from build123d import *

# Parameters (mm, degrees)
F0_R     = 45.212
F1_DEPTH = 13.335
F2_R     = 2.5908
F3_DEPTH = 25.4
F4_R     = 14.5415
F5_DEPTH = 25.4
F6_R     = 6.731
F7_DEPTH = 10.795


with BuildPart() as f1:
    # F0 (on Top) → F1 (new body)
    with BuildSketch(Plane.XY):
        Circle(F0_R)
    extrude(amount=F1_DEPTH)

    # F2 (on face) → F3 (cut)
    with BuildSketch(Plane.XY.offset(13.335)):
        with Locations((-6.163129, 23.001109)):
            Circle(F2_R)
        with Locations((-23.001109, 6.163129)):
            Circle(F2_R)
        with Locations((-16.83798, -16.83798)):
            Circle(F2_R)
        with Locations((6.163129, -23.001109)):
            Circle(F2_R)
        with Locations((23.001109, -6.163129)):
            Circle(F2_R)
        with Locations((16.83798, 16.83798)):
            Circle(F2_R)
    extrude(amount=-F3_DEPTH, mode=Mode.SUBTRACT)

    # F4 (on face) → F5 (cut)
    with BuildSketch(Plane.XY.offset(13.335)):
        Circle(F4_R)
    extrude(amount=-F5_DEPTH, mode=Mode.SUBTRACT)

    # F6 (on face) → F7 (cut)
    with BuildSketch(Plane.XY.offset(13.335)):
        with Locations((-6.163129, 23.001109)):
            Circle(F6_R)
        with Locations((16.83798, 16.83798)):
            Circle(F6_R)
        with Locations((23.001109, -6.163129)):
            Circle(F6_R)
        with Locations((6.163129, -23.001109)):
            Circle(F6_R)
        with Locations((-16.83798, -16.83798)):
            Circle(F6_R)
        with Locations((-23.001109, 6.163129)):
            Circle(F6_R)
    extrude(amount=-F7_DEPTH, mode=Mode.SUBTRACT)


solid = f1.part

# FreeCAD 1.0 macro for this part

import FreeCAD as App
import Part
import Sketcher
from FreeCAD import Vector
Q = App.Units.Quantity

doc = App.newDocument("Part")
params = doc.addObject("Spreadsheet::Sheet", "Params")
for row, (alias, value) in enumerate([
    ("sketch1_diameter", "3.56 in"),
    ("pad1_length", "0.525 in"),
    ("sketch2_diameter", "0.204 in"),
    ("pocket1_length", "1 in"),
    ("sketch3_diameter", "1.145 in"),
    ("pocket2_length", "1 in"),
    ("sketch4_diameter", "0.53 in"),
    ("pocket3_length", "0.425 in"),
], start=1):
    params.set(f"A{row}", alias)
    params.set(f"B{row}", "=" + value)
    params.setAlias(f"B{row}", alias)

body = doc.addObject("PartDesign::Body", "Body")

# Sketch on XY plane
sketch1 = doc.addObject("Sketcher::SketchObject", "Sketch")
body.addObject(sketch1)
sketch1.AttachmentSupport = (doc.XY_Plane, [""])
sketch1.MapMode = "FlatFace"
sketch1.addGeometry(Part.Circle(Vector(0, 0, 0), Vector(0, 0, 1), 45), False)
sketch1.addConstraint(Sketcher.Constraint("Coincident", 0, 3, -1, 1))
sketch1.addConstraint(Sketcher.Constraint("Diameter", 0, Q("3.56 in")))
sketch1.setExpression("Constraints[1]", "Params.sketch1_diameter")
pad1 = doc.addObject("PartDesign::Pad", "Pad")
body.addObject(pad1)
pad1.Profile = sketch1
pad1.setExpression("Length", "Params.pad1_length")

# Sketch on XY plane
sketch2 = doc.addObject("Sketcher::SketchObject", "Sketch001")
body.addObject(sketch2)
sketch2.AttachmentSupport = (doc.XY_Plane, [""])
sketch2.MapMode = "FlatFace"
sketch2.AttachmentOffset = App.Placement(Vector(0, 0, 0.525 * 25.4), App.Rotation())
sketch2.addGeometry(Part.Circle(Vector(-6.2, 23, 0), Vector(0, 0, 1), 2.6), False)
sketch2.addGeometry(Part.Circle(Vector(-23, 6.2, 0), Vector(0, 0, 1), 2.6), False)
sketch2.addGeometry(Part.Circle(Vector(-16.8, -16.8, 0), Vector(0, 0, 1), 2.6), False)
sketch2.addGeometry(Part.Circle(Vector(6.2, -23, 0), Vector(0, 0, 1), 2.6), False)
sketch2.addGeometry(Part.Circle(Vector(23, -6.2, 0), Vector(0, 0, 1), 2.6), False)
sketch2.addGeometry(Part.Circle(Vector(16.8, 16.8, 0), Vector(0, 0, 1), 2.6), False)
sketch2.addConstraint(Sketcher.Constraint("Equal", 0, 1))
sketch2.addConstraint(Sketcher.Constraint("Equal", 1, 2))
sketch2.addConstraint(Sketcher.Constraint("Equal", 2, 3))
sketch2.addConstraint(Sketcher.Constraint("Equal", 3, 4))
sketch2.addConstraint(Sketcher.Constraint("Equal", 4, 5))
sketch2.addConstraint(Sketcher.Constraint("Symmetric", 0, 3, 3, 3, -1, 1))
sketch2.addConstraint(Sketcher.Constraint("Symmetric", 1, 3, 4, 3, -1, 1))
sketch2.addConstraint(Sketcher.Constraint("Symmetric", 2, 3, 5, 3, -1, 1))
sketch2.addConstraint(Sketcher.Constraint("Diameter", 0, Q("0.204 in")))
sketch2.addConstraint(Sketcher.Constraint("DistanceX", 0, 3, -1, 1, 6.163129))
sketch2.addConstraint(Sketcher.Constraint("DistanceY", -1, 1, 0, 3, 23.001109))
sketch2.addConstraint(Sketcher.Constraint("DistanceX", 1, 3, -1, 1, 23.001109))
sketch2.addConstraint(Sketcher.Constraint("DistanceY", -1, 1, 1, 3, 6.163129))
sketch2.addConstraint(Sketcher.Constraint("DistanceX", 2, 3, -1, 1, 16.83798))
sketch2.addConstraint(Sketcher.Constraint("DistanceY", 2, 3, -1, 1, 16.83798))
sketch2.setExpression("Constraints[8]", "Params.sketch2_diameter")
pocket1 = doc.addObject("PartDesign::Pocket", "Pocket")
body.addObject(pocket1)
pocket1.Profile = sketch2
pocket1.setExpression("Length", "Params.pocket1_length")

# Sketch on XY plane
sketch3 = doc.addObject("Sketcher::SketchObject", "Sketch002")
body.addObject(sketch3)
sketch3.AttachmentSupport = (doc.XY_Plane, [""])
sketch3.MapMode = "FlatFace"
sketch3.AttachmentOffset = App.Placement(Vector(0, 0, 0.525 * 25.4), App.Rotation())
sketch3.addGeometry(Part.Circle(Vector(0, 0, 0), Vector(0, 0, 1), 15), False)
sketch3.addConstraint(Sketcher.Constraint("Coincident", 0, 3, -1, 1))
sketch3.addConstraint(Sketcher.Constraint("Diameter", 0, Q("1.145 in")))
sketch3.setExpression("Constraints[1]", "Params.sketch3_diameter")
pocket2 = doc.addObject("PartDesign::Pocket", "Pocket001")
body.addObject(pocket2)
pocket2.Profile = sketch3
pocket2.setExpression("Length", "Params.pocket2_length")

# Sketch on XY plane
sketch4 = doc.addObject("Sketcher::SketchObject", "Sketch003")
body.addObject(sketch4)
sketch4.AttachmentSupport = (doc.XY_Plane, [""])
sketch4.MapMode = "FlatFace"
sketch4.AttachmentOffset = App.Placement(Vector(0, 0, 0.525 * 25.4), App.Rotation())
sketch4.addGeometry(Part.Circle(Vector(-6, 23, 0), Vector(0, 0, 1), 7), False)
sketch4.addGeometry(Part.Circle(Vector(17, 17, 0), Vector(0, 0, 1), 7), False)
sketch4.addGeometry(Part.Circle(Vector(23, -6, 0), Vector(0, 0, 1), 7), False)
sketch4.addGeometry(Part.Circle(Vector(6, -23, 0), Vector(0, 0, 1), 7), False)
sketch4.addGeometry(Part.Circle(Vector(-17, -17, 0), Vector(0, 0, 1), 7), False)
sketch4.addGeometry(Part.Circle(Vector(-23, 6, 0), Vector(0, 0, 1), 7), False)
sketch4.addConstraint(Sketcher.Constraint("Equal", 0, 1))
sketch4.addConstraint(Sketcher.Constraint("Equal", 1, 2))
sketch4.addConstraint(Sketcher.Constraint("Equal", 2, 3))
sketch4.addConstraint(Sketcher.Constraint("Equal", 3, 4))
sketch4.addConstraint(Sketcher.Constraint("Equal", 4, 5))
sketch4.addConstraint(Sketcher.Constraint("Symmetric", 0, 3, 3, 3, -1, 1))
sketch4.addConstraint(Sketcher.Constraint("Symmetric", 1, 3, 4, 3, -1, 1))
sketch4.addConstraint(Sketcher.Constraint("Symmetric", 2, 3, 5, 3, -1, 1))
sketch4.addConstraint(Sketcher.Constraint("Diameter", 0, Q("0.53 in")))
sketch4.addConstraint(Sketcher.Constraint("DistanceX", 0, 3, -1, 1, 6.163129))
sketch4.addConstraint(Sketcher.Constraint("DistanceY", -1, 1, 0, 3, 23.001109))
sketch4.addConstraint(Sketcher.Constraint("DistanceX", -1, 1, 1, 3, 16.83798))
sketch4.addConstraint(Sketcher.Constraint("DistanceY", -1, 1, 1, 3, 16.83798))
sketch4.addConstraint(Sketcher.Constraint("DistanceX", -1, 1, 2, 3, 23.001109))
sketch4.addConstraint(Sketcher.Constraint("DistanceY", 2, 3, -1, 1, 6.163129))
sketch4.setExpression("Constraints[8]", "Params.sketch4_diameter")
pocket3 = doc.addObject("PartDesign::Pocket", "Pocket002")
body.addObject(pocket3)
pocket3.Profile = sketch4
pocket3.setExpression("Length", "Params.pocket3_length")

doc.recompute()
